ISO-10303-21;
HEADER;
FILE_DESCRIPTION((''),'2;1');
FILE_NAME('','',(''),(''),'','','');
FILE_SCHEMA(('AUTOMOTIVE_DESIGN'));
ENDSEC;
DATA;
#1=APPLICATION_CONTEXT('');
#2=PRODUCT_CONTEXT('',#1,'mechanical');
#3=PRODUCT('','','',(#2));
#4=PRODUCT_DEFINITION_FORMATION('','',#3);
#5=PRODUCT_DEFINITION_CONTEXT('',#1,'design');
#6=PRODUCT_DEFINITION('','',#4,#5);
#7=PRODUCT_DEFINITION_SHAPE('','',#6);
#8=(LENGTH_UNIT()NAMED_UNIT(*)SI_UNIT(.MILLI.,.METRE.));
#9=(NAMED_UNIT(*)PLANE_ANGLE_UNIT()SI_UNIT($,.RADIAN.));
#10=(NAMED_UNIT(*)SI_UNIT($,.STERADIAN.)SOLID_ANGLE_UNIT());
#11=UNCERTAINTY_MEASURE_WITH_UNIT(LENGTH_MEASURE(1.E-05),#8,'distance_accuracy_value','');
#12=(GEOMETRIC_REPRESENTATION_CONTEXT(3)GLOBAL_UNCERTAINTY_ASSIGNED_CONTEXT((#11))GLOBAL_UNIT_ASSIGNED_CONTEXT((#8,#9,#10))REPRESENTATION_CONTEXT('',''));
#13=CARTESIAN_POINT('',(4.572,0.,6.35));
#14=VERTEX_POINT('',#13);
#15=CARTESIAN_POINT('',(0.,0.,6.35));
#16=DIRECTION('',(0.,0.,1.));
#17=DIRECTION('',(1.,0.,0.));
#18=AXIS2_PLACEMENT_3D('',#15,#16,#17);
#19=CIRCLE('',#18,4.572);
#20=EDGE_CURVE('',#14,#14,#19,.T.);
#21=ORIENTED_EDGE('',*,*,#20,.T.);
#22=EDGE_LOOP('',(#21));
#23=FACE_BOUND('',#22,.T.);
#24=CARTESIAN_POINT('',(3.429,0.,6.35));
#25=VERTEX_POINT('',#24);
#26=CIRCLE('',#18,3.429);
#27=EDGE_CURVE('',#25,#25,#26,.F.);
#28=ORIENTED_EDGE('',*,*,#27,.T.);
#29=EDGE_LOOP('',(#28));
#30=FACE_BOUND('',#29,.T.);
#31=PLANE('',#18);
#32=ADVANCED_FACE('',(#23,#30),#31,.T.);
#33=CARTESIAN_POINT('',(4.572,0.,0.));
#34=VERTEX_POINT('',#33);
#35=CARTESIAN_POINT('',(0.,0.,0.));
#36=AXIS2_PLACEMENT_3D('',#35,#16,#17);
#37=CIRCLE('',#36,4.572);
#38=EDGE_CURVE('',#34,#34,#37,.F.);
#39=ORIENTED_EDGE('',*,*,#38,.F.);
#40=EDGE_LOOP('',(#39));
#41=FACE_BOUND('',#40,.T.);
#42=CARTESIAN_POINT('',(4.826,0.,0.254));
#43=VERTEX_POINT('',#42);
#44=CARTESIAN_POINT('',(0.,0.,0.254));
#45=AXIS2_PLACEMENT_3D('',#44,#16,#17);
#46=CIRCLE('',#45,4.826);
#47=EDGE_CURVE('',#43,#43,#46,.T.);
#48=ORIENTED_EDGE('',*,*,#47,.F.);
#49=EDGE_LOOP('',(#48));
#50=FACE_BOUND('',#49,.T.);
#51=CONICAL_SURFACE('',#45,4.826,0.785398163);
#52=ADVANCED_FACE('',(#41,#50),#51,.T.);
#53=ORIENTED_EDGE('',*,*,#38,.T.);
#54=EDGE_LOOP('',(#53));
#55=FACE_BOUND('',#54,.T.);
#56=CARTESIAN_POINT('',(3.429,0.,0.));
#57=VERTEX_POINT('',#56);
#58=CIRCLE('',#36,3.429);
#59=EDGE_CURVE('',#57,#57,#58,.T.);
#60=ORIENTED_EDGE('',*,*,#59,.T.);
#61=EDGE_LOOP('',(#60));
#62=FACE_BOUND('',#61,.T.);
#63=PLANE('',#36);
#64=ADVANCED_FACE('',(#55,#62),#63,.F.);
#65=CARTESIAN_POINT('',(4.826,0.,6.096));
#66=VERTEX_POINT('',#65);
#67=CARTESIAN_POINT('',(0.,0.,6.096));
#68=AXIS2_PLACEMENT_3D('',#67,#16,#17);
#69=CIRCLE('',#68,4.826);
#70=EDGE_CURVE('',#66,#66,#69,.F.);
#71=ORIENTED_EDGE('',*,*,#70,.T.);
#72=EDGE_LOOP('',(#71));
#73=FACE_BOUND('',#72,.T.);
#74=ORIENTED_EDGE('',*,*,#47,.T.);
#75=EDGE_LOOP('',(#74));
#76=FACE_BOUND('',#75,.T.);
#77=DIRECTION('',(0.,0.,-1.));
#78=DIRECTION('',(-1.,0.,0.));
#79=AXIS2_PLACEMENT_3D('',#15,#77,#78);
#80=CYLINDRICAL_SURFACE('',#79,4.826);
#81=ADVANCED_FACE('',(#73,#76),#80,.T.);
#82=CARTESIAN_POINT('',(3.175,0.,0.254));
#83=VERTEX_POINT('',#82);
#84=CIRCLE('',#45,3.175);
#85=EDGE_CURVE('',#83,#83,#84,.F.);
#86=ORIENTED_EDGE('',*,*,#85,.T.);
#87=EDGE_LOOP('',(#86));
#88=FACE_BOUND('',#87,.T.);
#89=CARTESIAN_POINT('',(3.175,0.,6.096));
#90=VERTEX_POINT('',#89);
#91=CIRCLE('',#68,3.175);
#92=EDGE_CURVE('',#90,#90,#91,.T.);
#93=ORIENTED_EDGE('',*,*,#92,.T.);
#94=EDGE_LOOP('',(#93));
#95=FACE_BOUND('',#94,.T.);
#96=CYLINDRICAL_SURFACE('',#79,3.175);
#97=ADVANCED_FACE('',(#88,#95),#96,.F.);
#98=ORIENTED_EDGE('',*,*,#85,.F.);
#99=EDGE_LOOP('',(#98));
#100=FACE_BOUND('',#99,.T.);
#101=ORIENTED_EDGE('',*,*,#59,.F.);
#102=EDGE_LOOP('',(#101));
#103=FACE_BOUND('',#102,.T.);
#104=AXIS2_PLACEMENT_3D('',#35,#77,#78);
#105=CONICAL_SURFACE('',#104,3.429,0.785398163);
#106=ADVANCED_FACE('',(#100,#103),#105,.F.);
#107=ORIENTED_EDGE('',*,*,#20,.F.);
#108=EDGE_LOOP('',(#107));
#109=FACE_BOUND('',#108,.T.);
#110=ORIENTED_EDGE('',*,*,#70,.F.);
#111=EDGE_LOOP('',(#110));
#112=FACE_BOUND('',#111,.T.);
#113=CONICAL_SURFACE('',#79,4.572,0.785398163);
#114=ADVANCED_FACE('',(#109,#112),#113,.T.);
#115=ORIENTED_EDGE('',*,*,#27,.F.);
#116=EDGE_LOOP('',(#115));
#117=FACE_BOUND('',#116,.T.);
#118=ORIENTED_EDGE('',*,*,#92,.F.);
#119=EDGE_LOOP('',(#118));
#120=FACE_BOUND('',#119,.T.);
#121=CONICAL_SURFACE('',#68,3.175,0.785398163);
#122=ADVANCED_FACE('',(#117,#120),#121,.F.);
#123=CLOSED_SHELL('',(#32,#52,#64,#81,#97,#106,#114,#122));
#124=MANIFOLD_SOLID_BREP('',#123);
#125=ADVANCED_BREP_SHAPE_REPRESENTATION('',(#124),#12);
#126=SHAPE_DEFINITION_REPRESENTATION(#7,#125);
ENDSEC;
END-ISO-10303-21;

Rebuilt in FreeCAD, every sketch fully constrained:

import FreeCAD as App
import Part
import Sketcher

V = App.Vector
Q = App.Units.Quantity


def edges_at(feature, points):
    """Names of the edges that pass closest to the given points."""
    edges = feature.Shape.Edges
    near = lambda p: min(range(len(edges)), key=lambda i: edges[i].distToShape(Part.Vertex(*p))[0])
    return sorted({f"Edge{near(p) + 1}" for p in points})

doc = App.newDocument("Part")
body = doc.addObject("PartDesign::Body", "Body")

# Sketch on XY plane
sketch1 = body.newObject("Sketcher::SketchObject", "Sketch")
sketch1.AttachmentSupport = (doc.getObject("XY_Plane"), [""])
sketch1.MapMode = "FlatFace"
sketch1.addGeometry([
    Part.Circle(V(0, 0, 0), V(0, 0, 1), 4.8),
    Part.Circle(V(0, 0, 0), V(0, 0, 1), 3.2),
], False)
sketch1.addConstraint([
    Sketcher.Constraint("Coincident", 0, 3, -1, 1),
    Sketcher.Constraint("Coincident", 1, 3, -1, 1),
    Sketcher.Constraint("Diameter", 0, Q("0.38 in")),
    Sketcher.Constraint("Diameter", 1, Q("0.25 in")),
])
pad1 = body.newObject("PartDesign::Pad", "Pad")
pad1.Profile = sketch1
pad1.Length = Q("0.25 in")
doc.recompute()

chamfer = body.newObject("PartDesign::Chamfer", "Chamfer")
chamfer.Base = (pad1, edges_at(pad1, [
    (-4.826, 0, 0),
    (-4.826, 0, 6.35),
    (-3.175, 0, 0),
    (-3.175, 0, 6.35),
]))
chamfer.Size = Q("0.01 in")

doc.recompute()
